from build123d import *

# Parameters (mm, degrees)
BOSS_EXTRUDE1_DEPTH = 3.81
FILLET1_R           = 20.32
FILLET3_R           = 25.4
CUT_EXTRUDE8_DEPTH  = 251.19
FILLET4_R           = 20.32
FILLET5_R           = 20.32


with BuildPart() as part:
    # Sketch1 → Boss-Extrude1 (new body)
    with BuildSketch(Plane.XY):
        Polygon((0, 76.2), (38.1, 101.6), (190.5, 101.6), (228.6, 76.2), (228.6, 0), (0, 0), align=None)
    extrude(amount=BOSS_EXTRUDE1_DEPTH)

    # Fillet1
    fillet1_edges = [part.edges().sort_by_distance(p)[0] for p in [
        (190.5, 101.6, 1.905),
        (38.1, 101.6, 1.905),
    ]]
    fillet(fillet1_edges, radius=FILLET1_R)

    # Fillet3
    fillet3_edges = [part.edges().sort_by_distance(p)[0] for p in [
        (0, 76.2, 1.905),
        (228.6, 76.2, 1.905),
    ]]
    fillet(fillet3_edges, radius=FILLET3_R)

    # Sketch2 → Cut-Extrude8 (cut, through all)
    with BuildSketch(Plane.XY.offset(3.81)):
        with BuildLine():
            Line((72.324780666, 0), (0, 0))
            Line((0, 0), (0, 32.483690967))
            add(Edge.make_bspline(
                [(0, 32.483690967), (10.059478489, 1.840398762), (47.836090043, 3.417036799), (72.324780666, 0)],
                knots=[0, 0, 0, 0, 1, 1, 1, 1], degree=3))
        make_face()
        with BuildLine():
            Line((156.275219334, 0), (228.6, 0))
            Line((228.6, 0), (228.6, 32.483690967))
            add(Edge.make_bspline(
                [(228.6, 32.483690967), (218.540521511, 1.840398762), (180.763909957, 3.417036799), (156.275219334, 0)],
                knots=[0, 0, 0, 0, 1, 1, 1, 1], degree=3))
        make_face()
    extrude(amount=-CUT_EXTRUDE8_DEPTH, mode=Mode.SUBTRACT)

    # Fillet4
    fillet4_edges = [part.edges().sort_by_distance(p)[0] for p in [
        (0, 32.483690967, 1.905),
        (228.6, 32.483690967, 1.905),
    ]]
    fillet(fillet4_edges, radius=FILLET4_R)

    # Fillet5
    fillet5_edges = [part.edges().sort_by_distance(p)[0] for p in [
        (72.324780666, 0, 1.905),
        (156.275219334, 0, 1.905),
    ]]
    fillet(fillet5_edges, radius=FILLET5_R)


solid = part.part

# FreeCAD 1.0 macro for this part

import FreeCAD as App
import Part
import Sketcher
Q = App.Units.Quantity


def edges_at(feature, points):
    """Names of the edges that pass closest to the given points."""
    edges = feature.Shape.Edges
    near = lambda p: min(range(len(edges)), key=lambda i: edges[i].distToShape(Part.Vertex(*p))[0])
    return sorted({f"Edge{near(p) + 1}" for p in points})


def add_polygon(sketch, points):
    """Adds a closed chain of lines whose ends are joined by coincident constraints."""
    first, n = sketch.GeometryCount, len(points)
    for a, b in zip(points, points[1:] + points[:1]):
        sketch.addGeometry(Part.LineSegment(App.Vector(*a, 0), App.Vector(*b, 0)), False)
    for i in range(n):
        sketch.addConstraint(Sketcher.Constraint("Coincident", first + i, 2, first + (i + 1) % n, 1))

doc = App.newDocument("Part")
body = doc.addObject("PartDesign::Body", "Body")

# Sketch on XY plane
sketch1 = body.newObject("Sketcher::SketchObject", "Sketch")
sketch1.AttachmentSupport = (doc.getObject("XY_Plane"), [""])
sketch1.MapMode = "FlatFace"
add_polygon(sketch1, [(38, 102), (0, 76), (0, 0), (229, 0), (229, 76), (190, 102)])  # lines 0-5
sketch1.addConstraint(Sketcher.Constraint("Vertical", 1))
sketch1.addConstraint(Sketcher.Constraint("Horizontal", 2))
sketch1.addConstraint(Sketcher.Constraint("Vertical", 3))
sketch1.addConstraint(Sketcher.Constraint("Horizontal", 5))
sketch1.addConstraint(Sketcher.Constraint("Coincident", 1, 2, -1, 1))
sketch1.addConstraint(Sketcher.Constraint("Horizontal", 0, 2, 3, 2))
sketch1.addConstraint(Sketcher.Constraint("Equal", 0, 4))
sketch1.addConstraint(Sketcher.Constraint("DistanceX", 2, 1, 2, 2, Q("9 in")))
sketch1.addConstraint(Sketcher.Constraint("DistanceX", 5, 2, 5, 1, Q("6 in")))
sketch1.addConstraint(Sketcher.Constraint("DistanceY", 1, 2, 1, 1, Q("3 in")))
sketch1.addConstraint(Sketcher.Constraint("DistanceY", -1, 1, 4, 2, Q("4 in")))
pad1 = body.newObject("PartDesign::Pad", "Pad")
pad1.Profile = sketch1
pad1.Length = Q("0.15 in")
doc.recompute()

fillet = body.newObject("PartDesign::Fillet", "Fillet")
fillet.Base = (pad1, edges_at(pad1, [(190.5, 101.6, 1.905), (38.1, 101.6, 1.905)]))
fillet.Radius = Q("0.8 in")
doc.recompute()

fillet2 = body.newObject("PartDesign::Fillet", "Fillet001")
fillet2.Base = (fillet, edges_at(fillet, [(0, 76.2, 1.905), (228.6, 76.2, 1.905)]))
fillet2.Radius = Q("1 in")

# Sketch on XY plane
sketch2 = body.newObject("Sketcher::SketchObject", "Sketch001")
sketch2.AttachmentSupport = (doc.getObject("XY_Plane"), [""])
sketch2.MapMode = "FlatFace"
sketch2.AttachmentOffset = App.Placement(App.Vector(0, 0, 0.15 * 25.4), App.Rotation())
sketch2.addGeometry(Part.LineSegment(App.Vector(0, 0, 0), App.Vector(72.324781, 0, 0)), False)
sketch2.addGeometry(Part.BSplineCurve([App.Vector(0, 32.483691, 0), App.Vector(10.059478, 1.840399, 0), App.Vector(47.83609, 3.417037, 0), App.Vector(72.324781, 0, 0)], [4, 4], [0, 1], False, 3, [1, 1, 1, 1], False), False)
sketch2.addGeometry(Part.LineSegment(App.Vector(0, 32.483691, 0), App.Vector(0, 0, 0)), False)
sketch2.addGeometry(Part.LineSegment(App.Vector(156.275219, 0, 0), App.Vector(228.6, 0, 0)), False)
sketch2.addGeometry(Part.LineSegment(App.Vector(228.6, 0, 0), App.Vector(228.6, 32.483691, 0)), False)
sketch2.addGeometry(Part.BSplineCurve([App.Vector(228.6, 32.483691, 0), App.Vector(218.540522, 1.840399, 0), App.Vector(180.76391, 3.417037, 0), App.Vector(156.275219, 0, 0)], [4, 4], [0, 1], False, 3, [1, 1, 1, 1], False), False)
sketch2.addConstraint(Sketcher.Constraint("Block", 1))
sketch2.addConstraint(Sketcher.Constraint("Block", 5))
sketch2.addConstraint(Sketcher.Constraint("Coincident", 0, 2, 1, 2))
sketch2.addConstraint(Sketcher.Constraint("Coincident", 1, 1, 2, 1))
sketch2.addConstraint(Sketcher.Constraint("Coincident", 2, 2, 0, 1))
sketch2.addConstraint(Sketcher.Constraint("Coincident", 3, 2, 4, 1))
sketch2.addConstraint(Sketcher.Constraint("Coincident", 4, 2, 5, 1))
sketch2.addConstraint(Sketcher.Constraint("Coincident", 5, 2, 3, 1))
sketch2.addConstraint(Sketcher.Constraint("Horizontal", 0))
sketch2.addConstraint(Sketcher.Constraint("Vertical", 2))
sketch2.addConstraint(Sketcher.Constraint("Horizontal", 3))
sketch2.addConstraint(Sketcher.Constraint("Vertical", 4))
pocket1 = body.newObject("PartDesign::Pocket", "Pocket")
pocket1.Profile = sketch2
pocket1.Type = "ThroughAll"
doc.recompute()

fillet3 = body.newObject("PartDesign::Fillet", "Fillet002")
fillet3.Base = (pocket1, edges_at(pocket1, [(0, 32.484, 1.905), (228.6, 32.484, 1.905)]))
fillet3.Radius = Q("0.8 in")
doc.recompute()

fillet4 = body.newObject("PartDesign::Fillet", "Fillet003")
fillet4.Base = (fillet3, edges_at(fillet3, [(72.325, 0, 1.905), (156.275, 0, 1.905)]))
fillet4.Radius = Q("0.8 in")

doc.recompute()
